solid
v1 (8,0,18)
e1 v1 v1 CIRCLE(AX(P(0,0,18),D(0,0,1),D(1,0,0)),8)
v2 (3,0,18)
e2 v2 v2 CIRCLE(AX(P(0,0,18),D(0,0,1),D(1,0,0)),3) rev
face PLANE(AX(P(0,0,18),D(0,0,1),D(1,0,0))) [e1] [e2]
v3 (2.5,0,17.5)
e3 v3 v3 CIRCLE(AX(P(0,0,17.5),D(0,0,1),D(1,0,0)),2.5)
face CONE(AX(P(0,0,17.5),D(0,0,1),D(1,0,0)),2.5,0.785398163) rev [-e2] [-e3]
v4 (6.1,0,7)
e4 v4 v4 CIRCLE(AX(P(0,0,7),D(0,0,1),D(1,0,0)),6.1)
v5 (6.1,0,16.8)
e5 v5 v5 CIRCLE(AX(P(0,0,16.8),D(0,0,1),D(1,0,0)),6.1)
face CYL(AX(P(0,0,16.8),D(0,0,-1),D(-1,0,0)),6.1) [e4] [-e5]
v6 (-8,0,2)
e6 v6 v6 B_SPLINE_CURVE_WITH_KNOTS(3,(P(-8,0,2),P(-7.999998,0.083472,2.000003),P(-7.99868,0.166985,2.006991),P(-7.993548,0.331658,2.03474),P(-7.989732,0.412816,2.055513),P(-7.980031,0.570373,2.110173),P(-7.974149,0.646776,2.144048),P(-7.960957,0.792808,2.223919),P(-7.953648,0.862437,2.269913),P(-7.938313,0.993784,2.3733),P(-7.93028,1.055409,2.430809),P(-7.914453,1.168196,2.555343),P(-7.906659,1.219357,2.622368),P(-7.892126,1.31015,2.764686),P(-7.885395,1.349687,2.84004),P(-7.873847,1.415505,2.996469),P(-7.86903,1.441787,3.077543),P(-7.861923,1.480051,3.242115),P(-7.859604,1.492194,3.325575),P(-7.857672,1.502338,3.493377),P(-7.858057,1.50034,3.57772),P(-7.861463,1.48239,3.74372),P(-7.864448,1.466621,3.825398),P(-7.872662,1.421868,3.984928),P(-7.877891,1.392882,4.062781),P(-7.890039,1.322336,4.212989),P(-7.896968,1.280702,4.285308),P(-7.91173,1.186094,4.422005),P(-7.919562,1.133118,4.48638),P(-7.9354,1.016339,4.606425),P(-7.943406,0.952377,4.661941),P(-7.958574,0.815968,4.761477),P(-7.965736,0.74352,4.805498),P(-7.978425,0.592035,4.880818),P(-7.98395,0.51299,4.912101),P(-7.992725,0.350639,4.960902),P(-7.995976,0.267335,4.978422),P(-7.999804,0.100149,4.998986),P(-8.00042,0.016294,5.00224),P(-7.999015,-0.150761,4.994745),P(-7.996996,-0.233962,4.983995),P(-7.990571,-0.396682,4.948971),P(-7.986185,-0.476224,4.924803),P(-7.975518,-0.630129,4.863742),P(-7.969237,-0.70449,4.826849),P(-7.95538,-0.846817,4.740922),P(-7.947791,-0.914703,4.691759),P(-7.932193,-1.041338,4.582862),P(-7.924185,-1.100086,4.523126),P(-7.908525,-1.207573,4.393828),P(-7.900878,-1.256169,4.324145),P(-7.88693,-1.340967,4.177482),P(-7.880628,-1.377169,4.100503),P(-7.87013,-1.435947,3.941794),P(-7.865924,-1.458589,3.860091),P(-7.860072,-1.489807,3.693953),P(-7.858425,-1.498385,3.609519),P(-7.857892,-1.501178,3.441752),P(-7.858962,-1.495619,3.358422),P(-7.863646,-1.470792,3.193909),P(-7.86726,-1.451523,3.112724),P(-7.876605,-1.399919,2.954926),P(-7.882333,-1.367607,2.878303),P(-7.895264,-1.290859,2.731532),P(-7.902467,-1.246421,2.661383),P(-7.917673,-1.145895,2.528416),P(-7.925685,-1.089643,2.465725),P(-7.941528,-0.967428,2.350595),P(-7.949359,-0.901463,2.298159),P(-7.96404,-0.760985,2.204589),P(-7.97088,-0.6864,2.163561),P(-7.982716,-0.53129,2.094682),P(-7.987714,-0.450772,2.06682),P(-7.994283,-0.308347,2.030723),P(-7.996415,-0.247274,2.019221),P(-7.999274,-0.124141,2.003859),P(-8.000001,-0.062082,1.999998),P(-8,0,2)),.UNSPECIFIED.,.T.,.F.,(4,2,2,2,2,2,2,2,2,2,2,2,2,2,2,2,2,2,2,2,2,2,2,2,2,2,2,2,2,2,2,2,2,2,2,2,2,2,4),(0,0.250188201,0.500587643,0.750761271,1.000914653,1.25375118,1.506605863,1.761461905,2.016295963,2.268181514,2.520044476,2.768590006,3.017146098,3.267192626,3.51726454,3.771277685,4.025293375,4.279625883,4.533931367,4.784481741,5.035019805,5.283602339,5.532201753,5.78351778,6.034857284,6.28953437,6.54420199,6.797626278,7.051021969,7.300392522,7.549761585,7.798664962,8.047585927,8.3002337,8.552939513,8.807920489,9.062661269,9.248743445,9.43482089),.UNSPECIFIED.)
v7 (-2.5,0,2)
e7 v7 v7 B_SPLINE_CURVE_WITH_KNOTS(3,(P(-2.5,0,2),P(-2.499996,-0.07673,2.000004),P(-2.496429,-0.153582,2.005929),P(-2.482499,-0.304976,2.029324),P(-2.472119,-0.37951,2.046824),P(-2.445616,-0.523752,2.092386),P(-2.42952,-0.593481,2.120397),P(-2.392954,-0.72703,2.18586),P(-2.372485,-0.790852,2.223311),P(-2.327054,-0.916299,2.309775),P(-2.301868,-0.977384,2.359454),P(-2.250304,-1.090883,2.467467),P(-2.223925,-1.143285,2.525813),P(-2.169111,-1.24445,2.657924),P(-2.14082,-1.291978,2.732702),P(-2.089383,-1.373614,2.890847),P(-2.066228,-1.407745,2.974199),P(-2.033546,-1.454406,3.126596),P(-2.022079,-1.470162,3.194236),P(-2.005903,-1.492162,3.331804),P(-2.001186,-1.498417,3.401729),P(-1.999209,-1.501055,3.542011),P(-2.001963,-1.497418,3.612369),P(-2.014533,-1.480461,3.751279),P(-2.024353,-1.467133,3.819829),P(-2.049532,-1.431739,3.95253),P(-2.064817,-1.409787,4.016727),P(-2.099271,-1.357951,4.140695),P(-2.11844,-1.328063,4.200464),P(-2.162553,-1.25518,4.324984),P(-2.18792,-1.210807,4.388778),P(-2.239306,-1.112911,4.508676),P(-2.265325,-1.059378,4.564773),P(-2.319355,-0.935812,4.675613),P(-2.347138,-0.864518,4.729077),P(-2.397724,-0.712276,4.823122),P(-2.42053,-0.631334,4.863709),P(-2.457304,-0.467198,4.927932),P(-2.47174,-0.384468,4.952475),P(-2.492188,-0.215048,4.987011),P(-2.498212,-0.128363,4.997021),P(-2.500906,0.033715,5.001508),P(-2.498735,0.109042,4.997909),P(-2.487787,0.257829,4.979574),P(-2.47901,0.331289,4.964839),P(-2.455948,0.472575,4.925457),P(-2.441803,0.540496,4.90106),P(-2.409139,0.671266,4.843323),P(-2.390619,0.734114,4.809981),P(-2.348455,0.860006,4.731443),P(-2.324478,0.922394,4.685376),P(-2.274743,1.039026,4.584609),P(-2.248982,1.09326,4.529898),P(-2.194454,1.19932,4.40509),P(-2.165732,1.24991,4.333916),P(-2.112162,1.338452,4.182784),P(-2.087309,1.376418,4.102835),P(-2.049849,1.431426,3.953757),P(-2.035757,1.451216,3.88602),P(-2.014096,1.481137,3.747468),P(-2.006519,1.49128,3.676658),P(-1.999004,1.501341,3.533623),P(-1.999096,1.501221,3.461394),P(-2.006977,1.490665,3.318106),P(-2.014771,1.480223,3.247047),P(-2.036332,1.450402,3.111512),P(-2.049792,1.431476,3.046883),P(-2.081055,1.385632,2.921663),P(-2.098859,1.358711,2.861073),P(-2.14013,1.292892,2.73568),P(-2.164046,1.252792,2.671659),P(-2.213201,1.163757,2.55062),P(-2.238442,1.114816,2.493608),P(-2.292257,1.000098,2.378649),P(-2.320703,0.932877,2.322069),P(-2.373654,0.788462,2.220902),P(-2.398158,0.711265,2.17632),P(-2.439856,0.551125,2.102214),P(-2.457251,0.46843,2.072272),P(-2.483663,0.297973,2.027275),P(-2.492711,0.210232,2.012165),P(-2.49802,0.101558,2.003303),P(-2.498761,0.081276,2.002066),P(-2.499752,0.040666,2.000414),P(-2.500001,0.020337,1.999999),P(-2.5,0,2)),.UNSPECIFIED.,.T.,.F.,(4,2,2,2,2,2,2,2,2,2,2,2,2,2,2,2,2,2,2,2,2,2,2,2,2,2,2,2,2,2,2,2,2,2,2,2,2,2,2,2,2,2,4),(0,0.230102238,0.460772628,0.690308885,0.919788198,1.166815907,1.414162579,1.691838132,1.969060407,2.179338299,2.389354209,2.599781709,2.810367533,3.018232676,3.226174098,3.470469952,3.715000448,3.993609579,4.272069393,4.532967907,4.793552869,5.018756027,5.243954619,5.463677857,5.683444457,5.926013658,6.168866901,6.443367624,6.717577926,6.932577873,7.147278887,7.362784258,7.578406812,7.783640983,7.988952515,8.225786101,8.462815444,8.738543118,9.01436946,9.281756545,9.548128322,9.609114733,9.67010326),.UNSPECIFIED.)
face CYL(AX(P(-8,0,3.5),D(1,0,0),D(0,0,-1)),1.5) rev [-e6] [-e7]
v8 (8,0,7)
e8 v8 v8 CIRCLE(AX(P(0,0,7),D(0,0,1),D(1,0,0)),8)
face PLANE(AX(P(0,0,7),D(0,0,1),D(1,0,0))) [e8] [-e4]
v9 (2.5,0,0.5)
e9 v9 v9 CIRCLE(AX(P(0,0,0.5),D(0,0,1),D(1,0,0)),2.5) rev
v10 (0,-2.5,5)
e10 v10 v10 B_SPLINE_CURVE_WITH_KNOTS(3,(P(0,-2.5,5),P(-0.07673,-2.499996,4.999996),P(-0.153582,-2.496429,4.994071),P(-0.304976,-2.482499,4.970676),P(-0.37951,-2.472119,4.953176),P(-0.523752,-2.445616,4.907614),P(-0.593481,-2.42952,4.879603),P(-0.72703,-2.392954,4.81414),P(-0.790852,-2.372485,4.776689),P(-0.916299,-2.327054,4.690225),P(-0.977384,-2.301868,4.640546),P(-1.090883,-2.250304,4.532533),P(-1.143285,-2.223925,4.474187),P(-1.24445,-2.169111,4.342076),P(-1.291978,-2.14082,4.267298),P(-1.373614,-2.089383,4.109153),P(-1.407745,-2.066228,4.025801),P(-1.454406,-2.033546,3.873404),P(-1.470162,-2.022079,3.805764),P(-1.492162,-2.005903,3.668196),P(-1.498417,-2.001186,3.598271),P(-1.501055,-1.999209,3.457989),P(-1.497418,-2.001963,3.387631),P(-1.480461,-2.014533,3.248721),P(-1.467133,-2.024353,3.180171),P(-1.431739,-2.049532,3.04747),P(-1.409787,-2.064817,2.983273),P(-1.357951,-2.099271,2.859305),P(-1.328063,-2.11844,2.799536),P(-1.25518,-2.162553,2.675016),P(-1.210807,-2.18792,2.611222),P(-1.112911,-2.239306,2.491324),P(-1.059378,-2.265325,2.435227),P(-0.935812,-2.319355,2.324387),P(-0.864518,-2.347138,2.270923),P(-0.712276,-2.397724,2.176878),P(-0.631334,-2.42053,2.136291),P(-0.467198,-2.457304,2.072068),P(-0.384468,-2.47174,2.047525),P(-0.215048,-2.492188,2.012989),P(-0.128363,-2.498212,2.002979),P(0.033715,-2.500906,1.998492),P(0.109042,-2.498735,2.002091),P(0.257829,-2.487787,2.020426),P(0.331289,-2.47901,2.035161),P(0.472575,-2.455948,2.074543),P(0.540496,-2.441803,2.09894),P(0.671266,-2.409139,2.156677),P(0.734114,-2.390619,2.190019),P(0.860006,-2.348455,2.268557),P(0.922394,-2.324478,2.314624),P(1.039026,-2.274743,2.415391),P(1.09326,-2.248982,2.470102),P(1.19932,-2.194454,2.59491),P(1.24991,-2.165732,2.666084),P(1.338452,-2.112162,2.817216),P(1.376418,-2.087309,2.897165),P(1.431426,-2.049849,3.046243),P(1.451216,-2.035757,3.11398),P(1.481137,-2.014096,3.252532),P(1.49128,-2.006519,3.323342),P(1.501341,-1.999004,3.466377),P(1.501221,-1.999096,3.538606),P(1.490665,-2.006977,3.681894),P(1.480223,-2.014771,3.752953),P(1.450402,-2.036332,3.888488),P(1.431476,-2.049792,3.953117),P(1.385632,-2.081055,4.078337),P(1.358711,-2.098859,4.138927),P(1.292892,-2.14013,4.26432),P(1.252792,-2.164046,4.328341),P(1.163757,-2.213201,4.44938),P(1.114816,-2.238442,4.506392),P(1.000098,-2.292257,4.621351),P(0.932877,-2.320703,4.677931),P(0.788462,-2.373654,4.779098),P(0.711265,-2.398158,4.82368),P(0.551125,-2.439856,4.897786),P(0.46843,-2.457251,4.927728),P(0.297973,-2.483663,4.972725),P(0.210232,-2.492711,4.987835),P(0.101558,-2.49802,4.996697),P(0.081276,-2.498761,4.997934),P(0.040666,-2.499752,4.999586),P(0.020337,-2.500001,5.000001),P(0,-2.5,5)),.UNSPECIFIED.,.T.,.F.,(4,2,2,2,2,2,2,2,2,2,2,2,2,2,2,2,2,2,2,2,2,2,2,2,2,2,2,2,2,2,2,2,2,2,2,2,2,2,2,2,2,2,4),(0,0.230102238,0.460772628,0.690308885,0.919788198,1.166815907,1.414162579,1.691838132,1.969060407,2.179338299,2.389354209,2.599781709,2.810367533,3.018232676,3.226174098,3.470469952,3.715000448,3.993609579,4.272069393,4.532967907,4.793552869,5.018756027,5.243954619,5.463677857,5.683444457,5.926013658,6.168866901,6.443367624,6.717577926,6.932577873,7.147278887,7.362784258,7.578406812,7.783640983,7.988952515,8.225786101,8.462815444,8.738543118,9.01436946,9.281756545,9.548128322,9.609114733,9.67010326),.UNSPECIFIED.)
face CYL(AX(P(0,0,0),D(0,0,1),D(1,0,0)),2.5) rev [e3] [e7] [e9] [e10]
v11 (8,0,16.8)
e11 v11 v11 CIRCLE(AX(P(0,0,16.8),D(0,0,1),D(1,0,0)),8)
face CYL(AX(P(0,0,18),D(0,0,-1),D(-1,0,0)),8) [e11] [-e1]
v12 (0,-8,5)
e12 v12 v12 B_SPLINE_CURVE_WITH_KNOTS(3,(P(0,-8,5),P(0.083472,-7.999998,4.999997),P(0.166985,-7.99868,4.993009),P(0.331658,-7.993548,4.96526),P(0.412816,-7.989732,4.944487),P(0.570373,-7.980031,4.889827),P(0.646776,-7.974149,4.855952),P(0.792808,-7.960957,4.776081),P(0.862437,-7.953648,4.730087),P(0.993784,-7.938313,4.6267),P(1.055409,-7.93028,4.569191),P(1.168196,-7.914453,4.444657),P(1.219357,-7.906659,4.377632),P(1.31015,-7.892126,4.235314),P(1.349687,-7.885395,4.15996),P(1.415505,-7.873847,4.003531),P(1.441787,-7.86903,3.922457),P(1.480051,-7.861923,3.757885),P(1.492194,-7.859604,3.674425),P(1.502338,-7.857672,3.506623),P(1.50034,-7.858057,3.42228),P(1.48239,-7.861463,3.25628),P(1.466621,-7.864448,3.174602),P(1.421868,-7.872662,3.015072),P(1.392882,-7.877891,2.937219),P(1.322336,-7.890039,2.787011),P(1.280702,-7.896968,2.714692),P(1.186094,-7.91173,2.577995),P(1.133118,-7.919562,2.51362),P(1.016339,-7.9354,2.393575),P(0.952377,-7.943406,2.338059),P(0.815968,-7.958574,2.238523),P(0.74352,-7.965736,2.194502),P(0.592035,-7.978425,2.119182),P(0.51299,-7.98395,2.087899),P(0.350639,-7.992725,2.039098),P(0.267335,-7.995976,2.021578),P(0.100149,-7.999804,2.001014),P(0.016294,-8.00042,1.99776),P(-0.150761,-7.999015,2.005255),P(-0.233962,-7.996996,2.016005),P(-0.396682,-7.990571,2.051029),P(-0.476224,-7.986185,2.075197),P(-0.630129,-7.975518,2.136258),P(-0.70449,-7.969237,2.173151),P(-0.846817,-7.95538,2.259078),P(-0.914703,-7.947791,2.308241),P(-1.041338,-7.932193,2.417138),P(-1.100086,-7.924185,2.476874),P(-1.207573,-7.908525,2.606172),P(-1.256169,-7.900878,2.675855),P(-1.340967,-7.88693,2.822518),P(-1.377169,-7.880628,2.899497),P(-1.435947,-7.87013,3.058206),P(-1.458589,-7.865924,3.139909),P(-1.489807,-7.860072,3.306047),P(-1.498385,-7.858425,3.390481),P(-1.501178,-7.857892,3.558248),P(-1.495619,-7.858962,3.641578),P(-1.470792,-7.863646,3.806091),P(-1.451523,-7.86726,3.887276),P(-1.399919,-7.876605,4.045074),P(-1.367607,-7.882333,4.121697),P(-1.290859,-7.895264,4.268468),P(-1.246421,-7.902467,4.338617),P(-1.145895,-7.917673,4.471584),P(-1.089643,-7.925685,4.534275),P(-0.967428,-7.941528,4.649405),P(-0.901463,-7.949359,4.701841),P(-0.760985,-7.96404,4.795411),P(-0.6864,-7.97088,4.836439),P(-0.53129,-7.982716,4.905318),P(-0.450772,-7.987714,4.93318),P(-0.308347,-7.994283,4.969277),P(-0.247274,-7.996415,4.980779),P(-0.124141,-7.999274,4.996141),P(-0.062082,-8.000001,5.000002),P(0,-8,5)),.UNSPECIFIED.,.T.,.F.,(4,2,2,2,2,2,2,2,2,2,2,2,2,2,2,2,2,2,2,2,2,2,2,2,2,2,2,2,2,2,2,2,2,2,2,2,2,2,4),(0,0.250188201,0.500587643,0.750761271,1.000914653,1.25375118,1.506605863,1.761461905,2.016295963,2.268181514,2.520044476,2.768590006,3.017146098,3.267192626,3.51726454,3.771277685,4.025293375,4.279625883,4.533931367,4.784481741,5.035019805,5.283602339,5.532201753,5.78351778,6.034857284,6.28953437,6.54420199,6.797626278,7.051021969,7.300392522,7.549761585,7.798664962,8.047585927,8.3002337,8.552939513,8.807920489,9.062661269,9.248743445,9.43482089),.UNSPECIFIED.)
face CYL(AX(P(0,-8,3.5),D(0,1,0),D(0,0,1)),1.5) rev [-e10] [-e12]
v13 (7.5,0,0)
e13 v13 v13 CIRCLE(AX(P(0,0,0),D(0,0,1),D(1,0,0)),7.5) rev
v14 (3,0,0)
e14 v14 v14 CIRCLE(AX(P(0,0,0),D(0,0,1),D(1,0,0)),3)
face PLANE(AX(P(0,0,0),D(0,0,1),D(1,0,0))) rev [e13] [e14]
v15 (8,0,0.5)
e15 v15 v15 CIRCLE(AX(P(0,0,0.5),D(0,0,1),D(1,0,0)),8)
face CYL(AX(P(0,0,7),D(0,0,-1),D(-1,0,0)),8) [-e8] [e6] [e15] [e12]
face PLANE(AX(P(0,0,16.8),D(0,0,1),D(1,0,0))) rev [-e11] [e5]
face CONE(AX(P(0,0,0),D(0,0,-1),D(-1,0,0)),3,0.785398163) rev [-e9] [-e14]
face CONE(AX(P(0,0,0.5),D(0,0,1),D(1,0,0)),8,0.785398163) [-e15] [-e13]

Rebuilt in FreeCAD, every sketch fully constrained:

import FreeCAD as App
import Part
import Sketcher
Q = App.Units.Quantity


def edges_at(feature, points):
    """Names of the edges that pass closest to the given points."""
    edges = feature.Shape.Edges
    near = lambda p: min(range(len(edges)), key=lambda i: edges[i].distToShape(Part.Vertex(*p))[0])
    return sorted({f"Edge{near(p) + 1}" for p in points})

doc = App.newDocument("Part")
params = doc.addObject("Spreadsheet::Sheet", "Params")
for row, (alias, value) in enumerate([
    ("sketch1_diameter", "16 mm"),
    ("pad1_length", "7 mm"),
    ("sketch2_diameter", "12.2 mm"),
    ("pad2_length", "9.8 mm"),
    ("sketch3_diameter", "16 mm"),
    ("pad3_length", "1.2 mm"),
    ("sketch4_diameter", "5 mm"),
    ("chamfer_size", "0.5 mm"),
    ("sketch5_diameter", "3 mm"),
    ("sketch6_diameter", "3 mm"),
], start=1):
    params.set(f"A{row}", alias)
    params.set(f"B{row}", "=" + value)
    params.setAlias(f"B{row}", alias)

body = doc.addObject("PartDesign::Body", "Body")

# Sketch on XY plane
sketch1 = body.newObject("Sketcher::SketchObject", "Sketch")
sketch1.AttachmentSupport = (doc.getObject("XY_Plane"), [""])
sketch1.MapMode = "FlatFace"
sketch1.addGeometry(Part.Circle(App.Vector(0, 0, 0), App.Vector(0, 0, 1), 8), False)
sketch1.addConstraint([
    Sketcher.Constraint("Coincident", 0, 3, -1, 1),
    Sketcher.Constraint("Diameter", 0, Q("16 mm")),
])
sketch1.setExpression("Constraints[1]", "Params.sketch1_diameter")
pad1 = body.newObject("PartDesign::Pad", "Pad")
pad1.Profile = sketch1
pad1.setExpression("Length", "Params.pad1_length")

# Sketch on XY plane
sketch2 = body.newObject("Sketcher::SketchObject", "Sketch001")
sketch2.AttachmentSupport = (doc.getObject("XY_Plane"), [""])
sketch2.MapMode = "FlatFace"
sketch2.AttachmentOffset = App.Placement(App.Vector(0, 0, 7), App.Rotation())
sketch2.addGeometry(Part.Circle(App.Vector(0, 0, 0), App.Vector(0, 0, 1), 6.1), False)
sketch2.addConstraint([
    Sketcher.Constraint("Coincident", 0, 3, -1, 1),
    Sketcher.Constraint("Diameter", 0, Q("12.2 mm")),
])
sketch2.setExpression("Constraints[1]", "Params.sketch2_diameter")
pad2 = body.newObject("PartDesign::Pad", "Pad001")
pad2.Profile = sketch2
pad2.setExpression("Length", "Params.pad2_length")

# Sketch on XY plane
sketch3 = body.newObject("Sketcher::SketchObject", "Sketch002")
sketch3.AttachmentSupport = (doc.getObject("XY_Plane"), [""])
sketch3.MapMode = "FlatFace"
sketch3.AttachmentOffset = App.Placement(App.Vector(0, 0, 16.8), App.Rotation())
sketch3.addGeometry(Part.Circle(App.Vector(0, 0, 0), App.Vector(0, 0, 1), 8), False)
sketch3.addConstraint([
    Sketcher.Constraint("Coincident", 0, 3, -1, 1),
    Sketcher.Constraint("Diameter", 0, Q("16 mm")),
])
sketch3.setExpression("Constraints[1]", "Params.sketch3_diameter")
pad3 = body.newObject("PartDesign::Pad", "Pad002")
pad3.Profile = sketch3
pad3.setExpression("Length", "Params.pad3_length")

# Sketch on XY plane
sketch4 = body.newObject("Sketcher::SketchObject", "Sketch003")
sketch4.AttachmentSupport = (doc.getObject("XY_Plane"), [""])
sketch4.MapMode = "FlatFace"
sketch4.AttachmentOffset = App.Placement(App.Vector(0, 0, 18), App.Rotation())
sketch4.addGeometry(Part.Circle(App.Vector(0, 0, 0), App.Vector(0, 0, 1), 2.5), False)
sketch4.addConstraint([
    Sketcher.Constraint("Coincident", 0, 3, -1, 1),
    Sketcher.Constraint("Diameter", 0, Q("5 mm")),
])
sketch4.setExpression("Constraints[1]", "Params.sketch4_diameter")
pocket1 = body.newObject("PartDesign::Pocket", "Pocket")
pocket1.Profile = sketch4
pocket1.Type = "ThroughAll"
doc.recompute()

chamfer = body.newObject("PartDesign::Chamfer", "Chamfer")
chamfer.Base = (pocket1, edges_at(pocket1, [(-2.5, 0, 0), (-2.5, 0, 18), (-8, 0, 0)]))
chamfer.setExpression("Size", "Params.chamfer_size")

# Sketch on YZ plane
sketch5 = body.newObject("Sketcher::SketchObject", "Sketch004")
sketch5.AttachmentSupport = (doc.getObject("YZ_Plane"), [""])
sketch5.MapMode = "FlatFace"
sketch5.addGeometry(Part.Circle(App.Vector(0, 3.5, 0), App.Vector(0, 0, 1), 1.5), False)
sketch5.addConstraint([
    Sketcher.Constraint("PointOnObject", 0, 3, -2),
    Sketcher.Constraint("Diameter", 0, Q("3 mm")),
    Sketcher.Constraint("DistanceY", -1, 1, 0, 3, Q("3.5 mm")),
])
sketch5.setExpression("Constraints[1]", "Params.sketch5_diameter")
pocket2 = body.newObject("PartDesign::Pocket", "Pocket001")
pocket2.Profile = sketch5
pocket2.Type = "ThroughAll"

# Sketch on XZ plane
sketch6 = body.newObject("Sketcher::SketchObject", "Sketch005")
sketch6.AttachmentSupport = (doc.getObject("XZ_Plane"), [""])
sketch6.MapMode = "FlatFace"
sketch6.addGeometry(Part.Circle(App.Vector(0, 3.5, 0), App.Vector(0, 0, 1), 1.5), False)
sketch6.addConstraint([
    Sketcher.Constraint("PointOnObject", 0, 3, -2),
    Sketcher.Constraint("Diameter", 0, Q("3 mm")),
    Sketcher.Constraint("DistanceY", -1, 1, 0, 3, Q("3.5 mm")),
])
sketch6.setExpression("Constraints[1]", "Params.sketch6_diameter")
pocket3 = body.newObject("PartDesign::Pocket", "Pocket002")
pocket3.Profile = sketch6
pocket3.Type = "ThroughAll"
pocket3.Reversed = True

doc.recompute()
